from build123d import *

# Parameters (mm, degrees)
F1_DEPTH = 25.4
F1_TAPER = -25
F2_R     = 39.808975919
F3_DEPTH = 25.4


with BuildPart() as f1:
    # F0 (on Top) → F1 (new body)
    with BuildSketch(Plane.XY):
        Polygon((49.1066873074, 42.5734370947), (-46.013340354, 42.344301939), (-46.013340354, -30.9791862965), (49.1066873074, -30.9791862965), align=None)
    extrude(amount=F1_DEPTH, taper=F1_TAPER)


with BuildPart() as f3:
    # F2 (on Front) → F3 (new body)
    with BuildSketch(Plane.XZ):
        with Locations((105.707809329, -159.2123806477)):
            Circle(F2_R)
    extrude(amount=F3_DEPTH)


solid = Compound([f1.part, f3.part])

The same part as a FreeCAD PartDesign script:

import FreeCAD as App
import Part
import Sketcher
from FreeCAD import Vector

doc = App.newDocument("Part")
params = doc.addObject("Spreadsheet::Sheet", "Params")
for row, (alias, value) in enumerate([
    ("pad1_length", "1 in"),
    ("pad1_taper", "25 deg"),
    ("pad2_length", "1 in"),
], start=1):
    params.set(f"A{row}", alias)
    params.set(f"B{row}", "=" + value)
    params.setAlias(f"B{row}", alias)

body = doc.addObject("PartDesign::Body", "Body")

# Sketch on XY plane
sketch1 = body.newObject("Sketcher::SketchObject", "Sketch")
sketch1.AttachmentSupport = (doc.getObject("XY_Plane"), [""])
sketch1.MapMode = "FlatFace"
sketch1.addGeometry(Part.LineSegment(Vector(49, 43, 0), Vector(-46, 42, 0)), False)
sketch1.addGeometry(Part.LineSegment(Vector(-46, 42, 0), Vector(-46, -31, 0)), False)
sketch1.addGeometry(Part.LineSegment(Vector(-46, -31, 0), Vector(49, -31, 0)), False)
sketch1.addGeometry(Part.LineSegment(Vector(49, -31, 0), Vector(49, 43, 0)), False)
sketch1.addConstraint(Sketcher.Constraint("Coincident", 0, 2, 1, 1))
sketch1.addConstraint(Sketcher.Constraint("Coincident", 1, 2, 2, 1))
sketch1.addConstraint(Sketcher.Constraint("Coincident", 2, 2, 3, 1))
sketch1.addConstraint(Sketcher.Constraint("Coincident", 3, 2, 0, 1))
sketch1.addConstraint(Sketcher.Constraint("Vertical", 1))
sketch1.addConstraint(Sketcher.Constraint("Horizontal", 2))
sketch1.addConstraint(Sketcher.Constraint("Vertical", 3))
sketch1.addConstraint(Sketcher.Constraint("DistanceY", 1, 2, 1, 1, 73.323488))
sketch1.addConstraint(Sketcher.Constraint("DistanceY", -1, 1, 0, 2, 42.344302))
sketch1.addConstraint(Sketcher.Constraint("DistanceX", 2, 1, 2, 2, 95.120028))
sketch1.addConstraint(Sketcher.Constraint("DistanceY", 3, 1, 3, 2, 73.552623))
sketch1.addConstraint(Sketcher.Constraint("DistanceX", 0, 2, -1, 1, 46.01334))
pad1 = body.newObject("PartDesign::Pad", "Pad")
pad1.Profile = sketch1
pad1.setExpression("Length", "Params.pad1_length")
pad1.setExpression("TaperAngle", "Params.pad1_taper")
body2 = doc.addObject("PartDesign::Body", "Body001")

# Sketch on XZ plane
sketch2 = body2.newObject("Sketcher::SketchObject", "Sketch001")
sketch2.AttachmentSupport = (doc.getObject("XZ_Plane001"), [""])
sketch2.MapMode = "FlatFace"
sketch2.addGeometry(Part.Circle(Vector(106, -159, 0), Vector(0, 0, 1), 40), False)
sketch2.addConstraint(Sketcher.Constraint("Diameter", 0, 79.617952))
sketch2.addConstraint(Sketcher.Constraint("DistanceX", -1, 1, 0, 3, 105.707809))
sketch2.addConstraint(Sketcher.Constraint("DistanceY", 0, 3, -1, 1, 159.212381))
pad2 = body2.newObject("PartDesign::Pad", "Pad001")
pad2.Profile = sketch2
pad2.setExpression("Length", "Params.pad2_length")

doc.recompute()
